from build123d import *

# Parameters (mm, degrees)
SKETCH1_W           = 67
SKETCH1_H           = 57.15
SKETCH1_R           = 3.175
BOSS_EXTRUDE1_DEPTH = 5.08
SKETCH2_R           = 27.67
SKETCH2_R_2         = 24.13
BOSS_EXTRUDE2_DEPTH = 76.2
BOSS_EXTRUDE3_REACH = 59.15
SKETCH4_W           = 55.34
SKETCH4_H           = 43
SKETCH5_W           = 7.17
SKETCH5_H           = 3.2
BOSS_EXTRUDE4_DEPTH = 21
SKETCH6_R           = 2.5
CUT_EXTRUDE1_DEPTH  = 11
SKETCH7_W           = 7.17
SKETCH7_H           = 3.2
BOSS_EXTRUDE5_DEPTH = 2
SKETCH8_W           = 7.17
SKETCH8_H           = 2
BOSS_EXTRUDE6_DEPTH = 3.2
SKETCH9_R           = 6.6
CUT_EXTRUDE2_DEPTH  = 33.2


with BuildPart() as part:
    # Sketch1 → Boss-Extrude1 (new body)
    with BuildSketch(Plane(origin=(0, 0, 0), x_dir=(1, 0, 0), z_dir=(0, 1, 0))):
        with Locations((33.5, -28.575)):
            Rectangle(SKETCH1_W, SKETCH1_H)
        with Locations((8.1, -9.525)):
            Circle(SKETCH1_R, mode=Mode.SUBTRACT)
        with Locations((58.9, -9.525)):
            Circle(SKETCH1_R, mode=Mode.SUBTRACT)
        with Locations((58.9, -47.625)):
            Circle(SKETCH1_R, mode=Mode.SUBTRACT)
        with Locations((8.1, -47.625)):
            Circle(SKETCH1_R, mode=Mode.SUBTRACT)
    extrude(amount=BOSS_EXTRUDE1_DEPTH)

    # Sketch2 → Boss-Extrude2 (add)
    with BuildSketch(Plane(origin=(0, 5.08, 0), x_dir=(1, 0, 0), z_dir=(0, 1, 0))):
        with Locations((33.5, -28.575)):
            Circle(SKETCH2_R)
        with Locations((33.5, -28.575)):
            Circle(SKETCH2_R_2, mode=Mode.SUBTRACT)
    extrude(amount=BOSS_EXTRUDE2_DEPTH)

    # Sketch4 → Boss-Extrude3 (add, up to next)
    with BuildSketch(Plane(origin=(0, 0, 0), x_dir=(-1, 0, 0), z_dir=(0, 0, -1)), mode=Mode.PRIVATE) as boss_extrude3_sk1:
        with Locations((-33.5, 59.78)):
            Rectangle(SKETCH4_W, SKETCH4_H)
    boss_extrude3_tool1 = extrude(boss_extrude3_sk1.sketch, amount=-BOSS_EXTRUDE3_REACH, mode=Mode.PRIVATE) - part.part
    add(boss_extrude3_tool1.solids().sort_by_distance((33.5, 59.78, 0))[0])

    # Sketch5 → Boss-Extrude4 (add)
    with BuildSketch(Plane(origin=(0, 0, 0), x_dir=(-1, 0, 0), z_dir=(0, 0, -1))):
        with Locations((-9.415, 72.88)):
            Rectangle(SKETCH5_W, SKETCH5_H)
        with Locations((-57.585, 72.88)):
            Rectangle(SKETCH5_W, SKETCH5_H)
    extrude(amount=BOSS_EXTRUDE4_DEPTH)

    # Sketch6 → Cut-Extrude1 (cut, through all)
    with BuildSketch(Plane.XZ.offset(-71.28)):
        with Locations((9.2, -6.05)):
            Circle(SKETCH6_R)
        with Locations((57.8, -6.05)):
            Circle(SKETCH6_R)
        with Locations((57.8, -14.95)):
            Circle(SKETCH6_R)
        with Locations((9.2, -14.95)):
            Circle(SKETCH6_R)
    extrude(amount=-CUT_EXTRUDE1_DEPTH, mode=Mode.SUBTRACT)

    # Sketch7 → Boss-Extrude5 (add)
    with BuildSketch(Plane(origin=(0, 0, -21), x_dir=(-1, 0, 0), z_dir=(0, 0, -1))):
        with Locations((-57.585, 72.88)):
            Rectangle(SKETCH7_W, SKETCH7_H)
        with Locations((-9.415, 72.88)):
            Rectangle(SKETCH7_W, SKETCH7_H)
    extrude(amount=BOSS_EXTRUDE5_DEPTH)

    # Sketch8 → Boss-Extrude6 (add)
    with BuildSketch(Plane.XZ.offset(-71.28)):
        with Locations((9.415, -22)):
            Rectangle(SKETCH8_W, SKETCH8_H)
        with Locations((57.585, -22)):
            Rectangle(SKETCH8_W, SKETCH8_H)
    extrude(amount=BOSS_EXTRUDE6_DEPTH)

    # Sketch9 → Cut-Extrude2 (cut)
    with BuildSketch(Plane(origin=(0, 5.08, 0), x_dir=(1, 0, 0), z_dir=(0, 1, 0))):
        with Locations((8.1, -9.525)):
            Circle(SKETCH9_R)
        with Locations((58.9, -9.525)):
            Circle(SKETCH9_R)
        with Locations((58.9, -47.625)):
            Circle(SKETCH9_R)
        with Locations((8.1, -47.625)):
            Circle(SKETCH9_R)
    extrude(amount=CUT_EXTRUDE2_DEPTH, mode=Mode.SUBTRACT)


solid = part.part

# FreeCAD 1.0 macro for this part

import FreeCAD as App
import Part
import Sketcher
Q = App.Units.Quantity


def add_polygon(sketch, points):
    """Adds a closed chain of lines whose ends are joined by coincident constraints."""
    first, n = sketch.GeometryCount, len(points)
    for a, b in zip(points, points[1:] + points[:1]):
        sketch.addGeometry(Part.LineSegment(App.Vector(*a, 0), App.Vector(*b, 0)), False)
    for i in range(n):
        sketch.addConstraint(Sketcher.Constraint("Coincident", first + i, 2, first + (i + 1) % n, 1))

doc = App.newDocument("Part")
body = doc.addObject("PartDesign::Body", "Body")

# Sketch on XZ plane
sketch1 = body.newObject("Sketcher::SketchObject", "Sketch")
sketch1.AttachmentSupport = (doc.getObject("XZ_Plane"), [""])
sketch1.MapMode = "FlatFace"
add_polygon(sketch1, [(0, 0), (0, 57.1), (67, 57.1), (67, 0)])  # lines 0-3
sketch1.addGeometry(Part.Circle(App.Vector(8.1, 47.6, 0), App.Vector(0, 0, 1), 3.2), False)  # 4
sketch1.addGeometry(Part.Circle(App.Vector(58.9, 47.6, 0), App.Vector(0, 0, 1), 3.2), False)  # 5
sketch1.addGeometry(Part.Circle(App.Vector(8.1, 9.5, 0), App.Vector(0, 0, 1), 3.2), False)  # 6
sketch1.addGeometry(Part.Circle(App.Vector(58.9, 9.5, 0), App.Vector(0, 0, 1), 3.2), False)  # 7
sketch1.addConstraint(Sketcher.Constraint("Vertical", 0))
sketch1.addConstraint(Sketcher.Constraint("Horizontal", 1))
sketch1.addConstraint(Sketcher.Constraint("Vertical", 2))
sketch1.addConstraint(Sketcher.Constraint("Horizontal", 3))
sketch1.addConstraint(Sketcher.Constraint("Coincident", 3, 2, -1, 1))
sketch1.addConstraint(Sketcher.Constraint("Equal", 4, 5))
sketch1.addConstraint(Sketcher.Constraint("Equal", 5, 6))
sketch1.addConstraint(Sketcher.Constraint("Equal", 6, 7))
sketch1.addConstraint(Sketcher.Constraint("Horizontal", 4, 3, 5, 3))
sketch1.addConstraint(Sketcher.Constraint("Horizontal", 6, 3, 7, 3))
sketch1.addConstraint(Sketcher.Constraint("Vertical", 4, 3, 6, 3))
sketch1.addConstraint(Sketcher.Constraint("Vertical", 5, 3, 7, 3))
sketch1.addConstraint(Sketcher.Constraint("Diameter", 4, Q("6.35 mm")))
sketch1.addConstraint(Sketcher.Constraint("DistanceX", 1, 1, 1, 2, Q("67 mm")))
sketch1.addConstraint(Sketcher.Constraint("DistanceY", 0, 1, 0, 2, Q("57.15 mm")))
sketch1.addConstraint(Sketcher.Constraint("DistanceX", -1, 1, 4, 3, Q("8.1 mm")))
sketch1.addConstraint(Sketcher.Constraint("DistanceX", -1, 1, 5, 3, Q("58.9 mm")))
sketch1.addConstraint(Sketcher.Constraint("DistanceY", 6, 3, 4, 3, Q("38.1 mm")))
sketch1.addConstraint(Sketcher.Constraint("DistanceY", -1, 1, 4, 3, Q("47.625 mm")))
pad1 = body.newObject("PartDesign::Pad", "Pad")
pad1.Profile = sketch1
pad1.Length = 5.08
pad1.Reversed = True

# Sketch on XZ plane
sketch2 = body.newObject("Sketcher::SketchObject", "Sketch001")
sketch2.AttachmentSupport = (doc.getObject("XZ_Plane"), [""])
sketch2.MapMode = "FlatFace"
sketch2.AttachmentOffset = App.Placement(App.Vector(0, 0, -5.08), App.Rotation())
sketch2.addGeometry(Part.Circle(App.Vector(34, 29, 0), App.Vector(0, 0, 1), 28), False)
sketch2.addGeometry(Part.Circle(App.Vector(34, 29, 0), App.Vector(0, 0, 1), 24), False)
sketch2.addConstraint(Sketcher.Constraint("Coincident", 1, 3, 0, 3))
sketch2.addConstraint(Sketcher.Constraint("Diameter", 0, Q("55.34 mm")))
sketch2.addConstraint(Sketcher.Constraint("Diameter", 1, Q("48.26 mm")))
sketch2.addConstraint(Sketcher.Constraint("DistanceX", -1, 1, 0, 3, Q("33.5 mm")))
sketch2.addConstraint(Sketcher.Constraint("DistanceY", -1, 1, 0, 3, Q("28.575 mm")))
pad2 = body.newObject("PartDesign::Pad", "Pad001")
pad2.Profile = sketch2
pad2.Length = 76.2
pad2.Reversed = True

# Sketch on XY plane
sketch3 = body.newObject("Sketcher::SketchObject", "Sketch002")
sketch3.AttachmentSupport = (doc.getObject("XY_Plane"), [""])
sketch3.MapMode = "FlatFace"
add_polygon(sketch3, [(61, 81), (61, 38), (6, 38), (6, 81)])  # lines 0-3
sketch3.addConstraint(Sketcher.Constraint("Vertical", 0))
sketch3.addConstraint(Sketcher.Constraint("Horizontal", 1))
sketch3.addConstraint(Sketcher.Constraint("Vertical", 2))
sketch3.addConstraint(Sketcher.Constraint("Horizontal", 3))
sketch3.addConstraint(Sketcher.Constraint("DistanceY", 0, 2, 0, 1, Q("43 mm")))
sketch3.addConstraint(Sketcher.Constraint("DistanceX", 1, 2, 1, 1, Q("55.34 mm")))
sketch3.addConstraint(Sketcher.Constraint("DistanceX", -1, 1, 0, 2, Q("61.17 mm")))
sketch3.addConstraint(Sketcher.Constraint("DistanceY", -1, 1, 0, 2, Q("38.28 mm")))
pad3 = body.newObject("PartDesign::Pad", "Pad002")
pad3.Profile = sketch3
pad3.Type = "UpToFirst"

# Sketch on XY plane
sketch4 = body.newObject("Sketcher::SketchObject", "Sketch003")
sketch4.AttachmentSupport = (doc.getObject("XY_Plane"), [""])
sketch4.MapMode = "FlatFace"
add_polygon(sketch4, [(13, 74.5), (13, 71.3), (5.8, 71.3), (5.8, 74.5)])  # lines 0-3
add_polygon(sketch4, [(61.2, 74.5), (61.2, 71.3), (54, 71.3), (54, 74.5)])  # lines 4-7
sketch4.addConstraint(Sketcher.Constraint("Vertical", 0))
sketch4.addConstraint(Sketcher.Constraint("Horizontal", 1))
sketch4.addConstraint(Sketcher.Constraint("Vertical", 2))
sketch4.addConstraint(Sketcher.Constraint("Horizontal", 3))
sketch4.addConstraint(Sketcher.Constraint("Vertical", 4))
sketch4.addConstraint(Sketcher.Constraint("Horizontal", 5))
sketch4.addConstraint(Sketcher.Constraint("Vertical", 6))
sketch4.addConstraint(Sketcher.Constraint("Horizontal", 7))
sketch4.addConstraint(Sketcher.Constraint("Horizontal", 1, 2, 4, 2))
sketch4.addConstraint(Sketcher.Constraint("Horizontal", 3, 2, 6, 2))
sketch4.addConstraint(Sketcher.Constraint("Equal", 3, 5))
sketch4.addConstraint(Sketcher.Constraint("DistanceY", 0, 2, 0, 1, Q("3.2 mm")))
sketch4.addConstraint(Sketcher.Constraint("DistanceX", -1, 1, 0, 2, Q("13 mm")))
sketch4.addConstraint(Sketcher.Constraint("DistanceX", -1, 1, 5, 2, Q("54 mm")))
sketch4.addConstraint(Sketcher.Constraint("DistanceX", 1, 2, 1, 1, Q("7.17 mm")))
sketch4.addConstraint(Sketcher.Constraint("DistanceY", -1, 1, 0, 2, Q("71.28 mm")))
pad4 = body.newObject("PartDesign::Pad", "Pad003")
pad4.Profile = sketch4
pad4.Length = 21
pad4.Reversed = True

# Sketch on XZ plane
sketch5 = body.newObject("Sketcher::SketchObject", "Sketch004")
sketch5.AttachmentSupport = (doc.getObject("XZ_Plane"), [""])
sketch5.MapMode = "FlatFace"
sketch5.AttachmentOffset = App.Placement(App.Vector(0, 0, -71.28), App.Rotation())
sketch5.addGeometry(Part.Circle(App.Vector(9.2, -6, 0), App.Vector(0, 0, 1), 2.5), False)
sketch5.addGeometry(Part.Circle(App.Vector(57.8, -6, 0), App.Vector(0, 0, 1), 2.5), False)
sketch5.addGeometry(Part.Circle(App.Vector(57.8, -14.9, 0), App.Vector(0, 0, 1), 2.5), False)
sketch5.addGeometry(Part.Circle(App.Vector(9.2, -14.9, 0), App.Vector(0, 0, 1), 2.5), False)
sketch5.addConstraint(Sketcher.Constraint("Equal", 0, 1))
sketch5.addConstraint(Sketcher.Constraint("Equal", 1, 2))
sketch5.addConstraint(Sketcher.Constraint("Equal", 2, 3))
sketch5.addConstraint(Sketcher.Constraint("Horizontal", 0, 3, 1, 3))
sketch5.addConstraint(Sketcher.Constraint("Horizontal", 2, 3, 3, 3))
sketch5.addConstraint(Sketcher.Constraint("Vertical", 1, 3, 2, 3))
sketch5.addConstraint(Sketcher.Constraint("Vertical", 0, 3, 3, 3))
sketch5.addConstraint(Sketcher.Constraint("Diameter", 0, Q("5 mm")))
sketch5.addConstraint(Sketcher.Constraint("DistanceX", -1, 1, 0, 3, Q("9.2 mm")))
sketch5.addConstraint(Sketcher.Constraint("DistanceX", -1, 1, 1, 3, Q("57.8 mm")))
sketch5.addConstraint(Sketcher.Constraint("DistanceY", 2, 3, 1, 3, Q("8.9 mm")))
sketch5.addConstraint(Sketcher.Constraint("DistanceY", 0, 3, -1, 1, Q("6.05 mm")))
pocket1 = body.newObject("PartDesign::Pocket", "Pocket")
pocket1.Profile = sketch5
pocket1.Type = "ThroughAll"

# Sketch on XY plane
sketch6 = body.newObject("Sketcher::SketchObject", "Sketch005")
sketch6.AttachmentSupport = (doc.getObject("XY_Plane"), [""])
sketch6.MapMode = "FlatFace"
sketch6.AttachmentOffset = App.Placement(App.Vector(0, 0, -21), App.Rotation())
add_polygon(sketch6, [(61.2, 74.5), (61.2, 71.3), (54, 71.3), (54, 74.5)])  # lines 0-3
add_polygon(sketch6, [(13, 74.5), (13, 71.3), (5.8, 71.3), (5.8, 74.5)])  # lines 4-7
sketch6.addConstraint(Sketcher.Constraint("Vertical", 0))
sketch6.addConstraint(Sketcher.Constraint("Horizontal", 1))
sketch6.addConstraint(Sketcher.Constraint("Vertical", 2))
sketch6.addConstraint(Sketcher.Constraint("Horizontal", 3))
sketch6.addConstraint(Sketcher.Constraint("Vertical", 4))
sketch6.addConstraint(Sketcher.Constraint("Horizontal", 5))
sketch6.addConstraint(Sketcher.Constraint("Vertical", 6))
sketch6.addConstraint(Sketcher.Constraint("Horizontal", 7))
sketch6.addConstraint(Sketcher.Constraint("Horizontal", 1, 2, 4, 2))
sketch6.addConstraint(Sketcher.Constraint("Horizontal", 3, 2, 6, 2))
sketch6.addConstraint(Sketcher.Constraint("Equal", 3, 5))
sketch6.addConstraint(Sketcher.Constraint("DistanceY", 0, 2, 0, 1, Q("3.2 mm")))
sketch6.addConstraint(Sketcher.Constraint("DistanceX", -1, 1, 1, 2, Q("54 mm")))
sketch6.addConstraint(Sketcher.Constraint("DistanceX", -1, 1, 4, 2, Q("13 mm")))
sketch6.addConstraint(Sketcher.Constraint("DistanceX", 1, 2, 1, 1, Q("7.17 mm")))
sketch6.addConstraint(Sketcher.Constraint("DistanceY", -1, 1, 0, 2, Q("71.28 mm")))
pad5 = body.newObject("PartDesign::Pad", "Pad004")
pad5.Profile = sketch6
pad5.Length = 2
pad5.Reversed = True

# Sketch on XZ plane
sketch7 = body.newObject("Sketcher::SketchObject", "Sketch006")
sketch7.AttachmentSupport = (doc.getObject("XZ_Plane"), [""])
sketch7.MapMode = "FlatFace"
sketch7.AttachmentOffset = App.Placement(App.Vector(0, 0, -71.28), App.Rotation())
add_polygon(sketch7, [(5.8, -21), (5.8, -23), (13, -23), (13, -21)])  # lines 0-3
add_polygon(sketch7, [(54, -21), (54, -23), (61.2, -23), (61.2, -21)])  # lines 4-7
sketch7.addConstraint(Sketcher.Constraint("Vertical", 0))
sketch7.addConstraint(Sketcher.Constraint("Horizontal", 1))
sketch7.addConstraint(Sketcher.Constraint("Vertical", 2))
sketch7.addConstraint(Sketcher.Constraint("Horizontal", 3))
sketch7.addConstraint(Sketcher.Constraint("Vertical", 4))
sketch7.addConstraint(Sketcher.Constraint("Horizontal", 5))
sketch7.addConstraint(Sketcher.Constraint("Vertical", 6))
sketch7.addConstraint(Sketcher.Constraint("Horizontal", 7))
sketch7.addConstraint(Sketcher.Constraint("Horizontal", 1, 2, 4, 2))
sketch7.addConstraint(Sketcher.Constraint("Horizontal", 3, 2, 6, 2))
sketch7.addConstraint(Sketcher.Constraint("Equal", 3, 5))
sketch7.addConstraint(Sketcher.Constraint("DistanceY", 0, 2, 0, 1, Q("2 mm")))
sketch7.addConstraint(Sketcher.Constraint("DistanceY", 0, 2, -1, 1, Q("23 mm")))
sketch7.addConstraint(Sketcher.Constraint("DistanceX", -1, 1, 1, 2, Q("13 mm")))
sketch7.addConstraint(Sketcher.Constraint("DistanceX", -1, 1, 4, 2, Q("54 mm")))
sketch7.addConstraint(Sketcher.Constraint("DistanceX", 1, 1, 1, 2, Q("7.17 mm")))
pad6 = body.newObject("PartDesign::Pad", "Pad005")
pad6.Profile = sketch7
pad6.Length = 3.2

# Sketch on XZ plane
sketch8 = body.newObject("Sketcher::SketchObject", "Sketch007")
sketch8.AttachmentSupport = (doc.getObject("XZ_Plane"), [""])
sketch8.MapMode = "FlatFace"
sketch8.AttachmentOffset = App.Placement(App.Vector(0, 0, -5.08), App.Rotation())
sketch8.addGeometry(Part.Circle(App.Vector(8, 10, 0), App.Vector(0, 0, 1), 7), False)
sketch8.addGeometry(Part.Circle(App.Vector(59, 10, 0), App.Vector(0, 0, 1), 7), False)
sketch8.addGeometry(Part.Circle(App.Vector(59, 48, 0), App.Vector(0, 0, 1), 7), False)
sketch8.addGeometry(Part.Circle(App.Vector(8, 48, 0), App.Vector(0, 0, 1), 7), False)
sketch8.addConstraint(Sketcher.Constraint("Equal", 0, 1))
sketch8.addConstraint(Sketcher.Constraint("Equal", 1, 2))
sketch8.addConstraint(Sketcher.Constraint("Equal", 2, 3))
sketch8.addConstraint(Sketcher.Constraint("Horizontal", 0, 3, 1, 3))
sketch8.addConstraint(Sketcher.Constraint("Horizontal", 2, 3, 3, 3))
sketch8.addConstraint(Sketcher.Constraint("Vertical", 1, 3, 2, 3))
sketch8.addConstraint(Sketcher.Constraint("Vertical", 0, 3, 3, 3))
sketch8.addConstraint(Sketcher.Constraint("Diameter", 0, Q("13.2 mm")))
sketch8.addConstraint(Sketcher.Constraint("DistanceX", -1, 1, 0, 3, Q("8.1 mm")))
sketch8.addConstraint(Sketcher.Constraint("DistanceX", -1, 1, 1, 3, Q("58.9 mm")))
sketch8.addConstraint(Sketcher.Constraint("DistanceY", 1, 3, 2, 3, Q("38.1 mm")))
sketch8.addConstraint(Sketcher.Constraint("DistanceY", -1, 1, 0, 3, Q("9.525 mm")))
pocket2 = body.newObject("PartDesign::Pocket", "Pocket001")
pocket2.Profile = sketch8
pocket2.Length = 33.2

doc.recompute()
